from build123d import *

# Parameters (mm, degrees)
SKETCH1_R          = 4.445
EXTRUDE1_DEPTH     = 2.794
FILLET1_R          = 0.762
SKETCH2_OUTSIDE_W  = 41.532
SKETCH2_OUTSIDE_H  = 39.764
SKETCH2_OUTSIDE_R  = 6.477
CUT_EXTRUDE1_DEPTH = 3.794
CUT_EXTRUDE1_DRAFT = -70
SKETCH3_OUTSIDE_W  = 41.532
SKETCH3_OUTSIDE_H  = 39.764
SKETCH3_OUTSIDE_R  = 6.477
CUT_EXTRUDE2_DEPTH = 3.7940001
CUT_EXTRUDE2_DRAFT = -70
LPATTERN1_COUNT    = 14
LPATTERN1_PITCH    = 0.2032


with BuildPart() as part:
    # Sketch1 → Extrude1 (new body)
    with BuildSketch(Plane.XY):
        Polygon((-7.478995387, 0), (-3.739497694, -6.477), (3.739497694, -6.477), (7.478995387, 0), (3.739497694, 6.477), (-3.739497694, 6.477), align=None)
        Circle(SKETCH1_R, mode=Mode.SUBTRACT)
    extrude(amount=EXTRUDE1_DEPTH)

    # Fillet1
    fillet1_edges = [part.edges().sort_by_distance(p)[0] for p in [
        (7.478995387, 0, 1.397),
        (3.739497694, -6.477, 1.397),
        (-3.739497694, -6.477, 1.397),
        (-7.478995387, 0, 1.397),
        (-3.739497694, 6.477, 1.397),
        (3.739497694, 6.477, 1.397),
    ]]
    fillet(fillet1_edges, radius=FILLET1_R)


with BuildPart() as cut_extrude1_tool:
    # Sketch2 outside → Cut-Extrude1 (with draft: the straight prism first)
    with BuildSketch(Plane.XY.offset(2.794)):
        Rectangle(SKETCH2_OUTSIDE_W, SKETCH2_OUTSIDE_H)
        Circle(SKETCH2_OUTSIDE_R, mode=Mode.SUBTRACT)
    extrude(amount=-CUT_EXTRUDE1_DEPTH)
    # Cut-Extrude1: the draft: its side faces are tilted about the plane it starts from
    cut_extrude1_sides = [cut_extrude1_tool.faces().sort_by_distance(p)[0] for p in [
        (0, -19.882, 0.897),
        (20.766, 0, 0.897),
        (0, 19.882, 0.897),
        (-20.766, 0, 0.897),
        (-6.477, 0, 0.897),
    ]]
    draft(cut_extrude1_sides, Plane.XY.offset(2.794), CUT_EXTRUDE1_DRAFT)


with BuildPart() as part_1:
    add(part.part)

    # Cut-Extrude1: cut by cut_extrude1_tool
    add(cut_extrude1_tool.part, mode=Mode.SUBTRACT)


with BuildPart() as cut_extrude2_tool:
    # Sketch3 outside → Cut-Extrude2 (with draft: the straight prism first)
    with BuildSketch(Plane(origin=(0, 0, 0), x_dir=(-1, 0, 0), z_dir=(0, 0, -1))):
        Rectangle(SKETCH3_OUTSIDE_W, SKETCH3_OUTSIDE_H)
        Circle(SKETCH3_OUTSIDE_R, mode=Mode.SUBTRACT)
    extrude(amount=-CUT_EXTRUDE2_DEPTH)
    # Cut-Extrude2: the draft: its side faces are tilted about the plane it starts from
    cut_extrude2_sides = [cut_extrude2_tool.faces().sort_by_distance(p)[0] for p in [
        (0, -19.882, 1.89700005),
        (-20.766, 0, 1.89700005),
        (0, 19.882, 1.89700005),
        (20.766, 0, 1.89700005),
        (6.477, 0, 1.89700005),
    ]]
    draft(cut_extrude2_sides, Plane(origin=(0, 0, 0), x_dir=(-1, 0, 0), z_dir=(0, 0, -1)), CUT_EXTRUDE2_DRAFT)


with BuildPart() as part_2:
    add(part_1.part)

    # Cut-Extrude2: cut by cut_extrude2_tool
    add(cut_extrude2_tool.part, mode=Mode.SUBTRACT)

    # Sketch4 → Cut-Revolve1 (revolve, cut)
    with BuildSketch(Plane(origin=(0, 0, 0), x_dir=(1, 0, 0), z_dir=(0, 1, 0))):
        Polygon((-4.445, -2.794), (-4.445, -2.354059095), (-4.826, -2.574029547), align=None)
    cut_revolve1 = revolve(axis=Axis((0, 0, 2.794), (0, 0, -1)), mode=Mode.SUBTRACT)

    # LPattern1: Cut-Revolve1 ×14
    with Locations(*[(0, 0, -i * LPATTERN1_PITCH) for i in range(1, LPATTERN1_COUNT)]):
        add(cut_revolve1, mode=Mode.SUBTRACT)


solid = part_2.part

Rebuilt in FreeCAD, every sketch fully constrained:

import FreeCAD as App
import Part
import Sketcher
Q = App.Units.Quantity


def edges_at(feature, points):
    """Names of the edges that pass closest to the given points."""
    edges = feature.Shape.Edges
    near = lambda p: min(range(len(edges)), key=lambda i: edges[i].distToShape(Part.Vertex(*p))[0])
    return sorted({f"Edge{near(p) + 1}" for p in points})


def faces_at(feature, points):
    """Names of the faces that lie closest to the given points."""
    faces = feature.Shape.Faces
    near = lambda p: min(range(len(faces)), key=lambda i: faces[i].distToShape(Part.Vertex(*p))[0])
    return sorted({f"Face{near(p) + 1}" for p in points})

doc = App.newDocument("Part")
params = doc.addObject("Spreadsheet::Sheet", "Params")
for row, (alias, value) in enumerate([
    ("sketch1_diameter", "0.35 in"),
    ("pad1_length", "0.11 in"),
    ("fillet_radius", "0.03 in"),
    ("sketch2_diameter", "0.51 in"),
    ("pad2_length", "3.794 mm"),
    ("draft_angle", "70 deg"),
    ("sketch3_diameter", "0.51 in"),
    ("pad3_length", "3.794 mm"),
    ("draft2_angle", "70 deg"),
    ("groove_angle", "360 deg"),
    ("linearpattern_pitch", "0.008 in"),
], start=1):
    params.set(f"A{row}", alias)
    params.set(f"B{row}", "=" + value)
    params.setAlias(f"B{row}", alias)

body = doc.addObject("PartDesign::Body", "Body")

sketch1 = body.newObject("Sketcher::SketchObject", "Sketch")
sketch1.AttachmentSupport = (doc.getObject("XY_Plane"), [""])
sketch1.MapMode = "FlatFace"
sketch1.addGeometry(Part.LineSegment(App.Vector(-7.5, 0, 0), App.Vector(-3.7, -6.5, 0)), False)
sketch1.addGeometry(Part.LineSegment(App.Vector(-3.7, -6.5, 0), App.Vector(3.7, -6.5, 0)), False)
sketch1.addGeometry(Part.LineSegment(App.Vector(3.7, -6.5, 0), App.Vector(7.5, 0, 0)), False)
sketch1.addGeometry(Part.LineSegment(App.Vector(7.5, 0, 0), App.Vector(3.7, 6.5, 0)), False)
sketch1.addGeometry(Part.LineSegment(App.Vector(3.7, 6.5, 0), App.Vector(-3.7, 6.5, 0)), False)
sketch1.addGeometry(Part.LineSegment(App.Vector(-3.7, 6.5, 0), App.Vector(-7.5, 0, 0)), False)
sketch1.addGeometry(Part.Circle(App.Vector(0, 0, 0), App.Vector(0, 0, 1), 4.4), False)
sketch1.addConstraint(Sketcher.Constraint("Coincident", 0, 2, 1, 1))
sketch1.addConstraint(Sketcher.Constraint("Coincident", 1, 2, 2, 1))
sketch1.addConstraint(Sketcher.Constraint("Coincident", 2, 2, 3, 1))
sketch1.addConstraint(Sketcher.Constraint("Coincident", 3, 2, 4, 1))
sketch1.addConstraint(Sketcher.Constraint("Coincident", 4, 2, 5, 1))
sketch1.addConstraint(Sketcher.Constraint("Coincident", 5, 2, 0, 1))
sketch1.addConstraint(Sketcher.Constraint("Horizontal", 1))
sketch1.addConstraint(Sketcher.Constraint("Horizontal", 4))
sketch1.addConstraint(Sketcher.Constraint("Coincident", 6, 3, -1, 1))
sketch1.addConstraint(Sketcher.Constraint("Symmetric", 0, 2, 3, 2, -1, 1))
sketch1.addConstraint(Sketcher.Constraint("Symmetric", 2, 2, 5, 2, -1, 1))
sketch1.addConstraint(Sketcher.Constraint("PointOnObject", 2, 2, -1))
sketch1.addConstraint(Sketcher.Constraint("Parallel", 2, 5))
sketch1.addConstraint(Sketcher.Constraint("Vertical", 1, 2, 3, 2))
sketch1.addConstraint(Sketcher.Constraint("Diameter", 6, Q("0.35 in")))
sketch1.addConstraint(Sketcher.Constraint("Angle", 0, Q("-60 deg")))
sketch1.addConstraint(Sketcher.Constraint("DistanceY", 1, 2, 3, 2, Q("0.51 in")))
sketch1.addConstraint(Sketcher.Constraint("DistanceX", 1, 1, 1, 2, Q("7.478995 mm")))
sketch1.setExpression("Constraints[14]", "Params.sketch1_diameter")
pad1 = body.newObject("PartDesign::Pad", "Pad")
pad1.Profile = sketch1
pad1.setExpression("Length", "Params.pad1_length")
doc.recompute()

fillet = body.newObject("PartDesign::Fillet", "Fillet")
fillet.Base = (pad1, edges_at(pad1, [
    (7.479, 0, 1.397),
    (3.739, -6.477, 1.397),
    (-3.739, -6.477, 1.397),
    (-7.479, 0, 1.397),
    (-3.739, 6.477, 1.397),
    (3.739, 6.477, 1.397),
]))
fillet.setExpression("Radius", "Params.fillet_radius")
body2 = doc.addObject("PartDesign::Body", "Body001")

sketch2 = body2.newObject("Sketcher::SketchObject", "Sketch001")
sketch2.AttachmentSupport = (doc.getObject("XY_Plane001"), [""])
sketch2.MapMode = "FlatFace"
sketch2.AttachmentOffset = App.Placement(App.Vector(0, 0, 0.11 * 25.4), App.Rotation())
sketch2.addGeometry(Part.LineSegment(App.Vector(-21, 20, 0), App.Vector(-21, -20, 0)), False)
sketch2.addGeometry(Part.LineSegment(App.Vector(-21, -20, 0), App.Vector(21, -20, 0)), False)
sketch2.addGeometry(Part.LineSegment(App.Vector(21, -20, 0), App.Vector(21, 20, 0)), False)
sketch2.addGeometry(Part.LineSegment(App.Vector(21, 20, 0), App.Vector(-21, 20, 0)), False)
sketch2.addGeometry(Part.Circle(App.Vector(0, 0, 0), App.Vector(0, 0, 1), 6), False)
sketch2.addConstraint(Sketcher.Constraint("Coincident", 0, 2, 1, 1))
sketch2.addConstraint(Sketcher.Constraint("Coincident", 1, 2, 2, 1))
sketch2.addConstraint(Sketcher.Constraint("Coincident", 2, 2, 3, 1))
sketch2.addConstraint(Sketcher.Constraint("Coincident", 3, 2, 0, 1))
sketch2.addConstraint(Sketcher.Constraint("Vertical", 0))
sketch2.addConstraint(Sketcher.Constraint("Horizontal", 1))
sketch2.addConstraint(Sketcher.Constraint("Vertical", 2))
sketch2.addConstraint(Sketcher.Constraint("Horizontal", 3))
sketch2.addConstraint(Sketcher.Constraint("Coincident", 4, 3, -1, 1))
sketch2.addConstraint(Sketcher.Constraint("Symmetric", 0, 2, 2, 2, -1, 1))
sketch2.addConstraint(Sketcher.Constraint("Diameter", 4, Q("0.51 in")))
sketch2.addConstraint(Sketcher.Constraint("DistanceX", 1, 1, 1, 2, Q("41.532 mm")))
sketch2.addConstraint(Sketcher.Constraint("DistanceY", 0, 2, 0, 1, Q("39.764 mm")))
sketch2.setExpression("Constraints[10]", "Params.sketch2_diameter")
pad2 = body2.newObject("PartDesign::Pad", "Pad001")
pad2.Profile = sketch2
pad2.setExpression("Length", "Params.pad2_length")
pad2.Reversed = True
doc.recompute()

datumplane = body2.newObject("PartDesign::Plane", "DatumPlane")
datumplane.AttachmentSupport = (doc.getObject("XY_Plane001"), [""])
datumplane.MapMode = "FlatFace"
datumplane.AttachmentOffset = App.Placement(App.Vector(0, 0, 0.11 * 25.4), App.Rotation())
draft = body2.newObject("PartDesign::Draft", "Draft")
draft.Base = (pad2, faces_at(pad2, [
    (0, -19.882, 0.897),
    (20.766, 0, 0.897),
    (0, 19.882, 0.897),
    (-20.766, 0, 0.897),
    (-6.477, 0, 0.897),
]))
draft.NeutralPlane = (datumplane, [""])
draft.setExpression("Angle", "Params.draft_angle")
draft.Reversed = True
doc.recompute()

boolean = body.newObject("PartDesign::Boolean", "Boolean")
boolean.Type = "Cut"
boolean.addObjects([body2])
body3 = doc.addObject("PartDesign::Body", "Body002")

sketch3 = body3.newObject("Sketcher::SketchObject", "Sketch002")
sketch3.AttachmentSupport = (doc.getObject("XY_Plane002"), [""])
sketch3.MapMode = "FlatFace"
sketch3.addGeometry(Part.LineSegment(App.Vector(21, 20, 0), App.Vector(21, -20, 0)), False)
sketch3.addGeometry(Part.LineSegment(App.Vector(21, -20, 0), App.Vector(-21, -20, 0)), False)
sketch3.addGeometry(Part.LineSegment(App.Vector(-21, -20, 0), App.Vector(-21, 20, 0)), False)
sketch3.addGeometry(Part.LineSegment(App.Vector(-21, 20, 0), App.Vector(21, 20, 0)), False)
sketch3.addGeometry(Part.Circle(App.Vector(0, 0, 0), App.Vector(0, 0, 1), 6), False)
sketch3.addConstraint(Sketcher.Constraint("Coincident", 0, 2, 1, 1))
sketch3.addConstraint(Sketcher.Constraint("Coincident", 1, 2, 2, 1))
sketch3.addConstraint(Sketcher.Constraint("Coincident", 2, 2, 3, 1))
sketch3.addConstraint(Sketcher.Constraint("Coincident", 3, 2, 0, 1))
sketch3.addConstraint(Sketcher.Constraint("Vertical", 0))
sketch3.addConstraint(Sketcher.Constraint("Horizontal", 1))
sketch3.addConstraint(Sketcher.Constraint("Vertical", 2))
sketch3.addConstraint(Sketcher.Constraint("Horizontal", 3))
sketch3.addConstraint(Sketcher.Constraint("Coincident", 4, 3, -1, 1))
sketch3.addConstraint(Sketcher.Constraint("Symmetric", 0, 2, 2, 2, -1, 1))
sketch3.addConstraint(Sketcher.Constraint("Diameter", 4, Q("0.51 in")))
sketch3.addConstraint(Sketcher.Constraint("DistanceX", 1, 2, 1, 1, Q("41.532 mm")))
sketch3.addConstraint(Sketcher.Constraint("DistanceY", 0, 2, 0, 1, Q("39.764 mm")))
sketch3.setExpression("Constraints[10]", "Params.sketch3_diameter")
pad3 = body3.newObject("PartDesign::Pad", "Pad002")
pad3.Profile = sketch3
pad3.setExpression("Length", "Params.pad3_length")
doc.recompute()

draft2 = body3.newObject("PartDesign::Draft", "Draft001")
draft2.Base = (pad3, faces_at(pad3, [
    (0, -19.882, 1.897),
    (-20.766, 0, 1.897),
    (0, 19.882, 1.897),
    (20.766, 0, 1.897),
    (6.477, 0, 1.897),
]))
draft2.NeutralPlane = (doc.getObject("XY_Plane002"), [""])
draft2.setExpression("Angle", "Params.draft2_angle")
draft2.Reversed = False
doc.recompute()

boolean2 = body.newObject("PartDesign::Boolean", "Boolean001")
boolean2.Type = "Cut"
boolean2.addObjects([body3])

sketch4 = body.newObject("Sketcher::SketchObject", "Sketch003")
sketch4.AttachmentSupport = (doc.getObject("XZ_Plane"), [""])
sketch4.MapMode = "FlatFace"
sketch4.addGeometry(Part.LineSegment(App.Vector(-4.45, 2.79, 0), App.Vector(-4.45, 2.35, 0)), False)
sketch4.addGeometry(Part.LineSegment(App.Vector(-4.45, 2.35, 0), App.Vector(-4.83, 2.57, 0)), False)
sketch4.addGeometry(Part.LineSegment(App.Vector(-4.83, 2.57, 0), App.Vector(-4.45, 2.79, 0)), False)
sketch4.addConstraint(Sketcher.Constraint("Coincident", 0, 2, 1, 1))
sketch4.addConstraint(Sketcher.Constraint("Coincident", 1, 2, 2, 1))
sketch4.addConstraint(Sketcher.Constraint("Coincident", 2, 2, 0, 1))
sketch4.addConstraint(Sketcher.Constraint("Vertical", 0))
sketch4.addConstraint(Sketcher.Constraint("Equal", 1, 2))
sketch4.addConstraint(Sketcher.Constraint("Angle", 1, Q("150 deg")))
sketch4.addConstraint(Sketcher.Constraint("DistanceX", 1, 2, -1, 1, Q("0.19 in")))
sketch4.addConstraint(Sketcher.Constraint("DistanceY", -1, 1, 2, 2, Q("0.11 in")))
sketch4.addConstraint(Sketcher.Constraint("DistanceX", 0, 2, -1, 1, Q("0.175 in")))
groove = body.newObject("PartDesign::Groove", "Groove")
groove.Profile = sketch4
groove.ReferenceAxis = (sketch4, ["V_Axis"])
groove.setExpression("Angle", "Params.groove_angle")
doc.recompute()

linearpattern = body.newObject("PartDesign::LinearPattern", "LinearPattern")
linearpattern.Originals = [groove]
linearpattern.Direction = (doc.getObject("Z_Axis"), [""])
linearpattern.Mode = "offset"
linearpattern.setExpression("Offset", "Params.linearpattern_pitch")
linearpattern.Occurrences = 14
linearpattern.Reversed = True
body.Tip = linearpattern

doc.recompute()
